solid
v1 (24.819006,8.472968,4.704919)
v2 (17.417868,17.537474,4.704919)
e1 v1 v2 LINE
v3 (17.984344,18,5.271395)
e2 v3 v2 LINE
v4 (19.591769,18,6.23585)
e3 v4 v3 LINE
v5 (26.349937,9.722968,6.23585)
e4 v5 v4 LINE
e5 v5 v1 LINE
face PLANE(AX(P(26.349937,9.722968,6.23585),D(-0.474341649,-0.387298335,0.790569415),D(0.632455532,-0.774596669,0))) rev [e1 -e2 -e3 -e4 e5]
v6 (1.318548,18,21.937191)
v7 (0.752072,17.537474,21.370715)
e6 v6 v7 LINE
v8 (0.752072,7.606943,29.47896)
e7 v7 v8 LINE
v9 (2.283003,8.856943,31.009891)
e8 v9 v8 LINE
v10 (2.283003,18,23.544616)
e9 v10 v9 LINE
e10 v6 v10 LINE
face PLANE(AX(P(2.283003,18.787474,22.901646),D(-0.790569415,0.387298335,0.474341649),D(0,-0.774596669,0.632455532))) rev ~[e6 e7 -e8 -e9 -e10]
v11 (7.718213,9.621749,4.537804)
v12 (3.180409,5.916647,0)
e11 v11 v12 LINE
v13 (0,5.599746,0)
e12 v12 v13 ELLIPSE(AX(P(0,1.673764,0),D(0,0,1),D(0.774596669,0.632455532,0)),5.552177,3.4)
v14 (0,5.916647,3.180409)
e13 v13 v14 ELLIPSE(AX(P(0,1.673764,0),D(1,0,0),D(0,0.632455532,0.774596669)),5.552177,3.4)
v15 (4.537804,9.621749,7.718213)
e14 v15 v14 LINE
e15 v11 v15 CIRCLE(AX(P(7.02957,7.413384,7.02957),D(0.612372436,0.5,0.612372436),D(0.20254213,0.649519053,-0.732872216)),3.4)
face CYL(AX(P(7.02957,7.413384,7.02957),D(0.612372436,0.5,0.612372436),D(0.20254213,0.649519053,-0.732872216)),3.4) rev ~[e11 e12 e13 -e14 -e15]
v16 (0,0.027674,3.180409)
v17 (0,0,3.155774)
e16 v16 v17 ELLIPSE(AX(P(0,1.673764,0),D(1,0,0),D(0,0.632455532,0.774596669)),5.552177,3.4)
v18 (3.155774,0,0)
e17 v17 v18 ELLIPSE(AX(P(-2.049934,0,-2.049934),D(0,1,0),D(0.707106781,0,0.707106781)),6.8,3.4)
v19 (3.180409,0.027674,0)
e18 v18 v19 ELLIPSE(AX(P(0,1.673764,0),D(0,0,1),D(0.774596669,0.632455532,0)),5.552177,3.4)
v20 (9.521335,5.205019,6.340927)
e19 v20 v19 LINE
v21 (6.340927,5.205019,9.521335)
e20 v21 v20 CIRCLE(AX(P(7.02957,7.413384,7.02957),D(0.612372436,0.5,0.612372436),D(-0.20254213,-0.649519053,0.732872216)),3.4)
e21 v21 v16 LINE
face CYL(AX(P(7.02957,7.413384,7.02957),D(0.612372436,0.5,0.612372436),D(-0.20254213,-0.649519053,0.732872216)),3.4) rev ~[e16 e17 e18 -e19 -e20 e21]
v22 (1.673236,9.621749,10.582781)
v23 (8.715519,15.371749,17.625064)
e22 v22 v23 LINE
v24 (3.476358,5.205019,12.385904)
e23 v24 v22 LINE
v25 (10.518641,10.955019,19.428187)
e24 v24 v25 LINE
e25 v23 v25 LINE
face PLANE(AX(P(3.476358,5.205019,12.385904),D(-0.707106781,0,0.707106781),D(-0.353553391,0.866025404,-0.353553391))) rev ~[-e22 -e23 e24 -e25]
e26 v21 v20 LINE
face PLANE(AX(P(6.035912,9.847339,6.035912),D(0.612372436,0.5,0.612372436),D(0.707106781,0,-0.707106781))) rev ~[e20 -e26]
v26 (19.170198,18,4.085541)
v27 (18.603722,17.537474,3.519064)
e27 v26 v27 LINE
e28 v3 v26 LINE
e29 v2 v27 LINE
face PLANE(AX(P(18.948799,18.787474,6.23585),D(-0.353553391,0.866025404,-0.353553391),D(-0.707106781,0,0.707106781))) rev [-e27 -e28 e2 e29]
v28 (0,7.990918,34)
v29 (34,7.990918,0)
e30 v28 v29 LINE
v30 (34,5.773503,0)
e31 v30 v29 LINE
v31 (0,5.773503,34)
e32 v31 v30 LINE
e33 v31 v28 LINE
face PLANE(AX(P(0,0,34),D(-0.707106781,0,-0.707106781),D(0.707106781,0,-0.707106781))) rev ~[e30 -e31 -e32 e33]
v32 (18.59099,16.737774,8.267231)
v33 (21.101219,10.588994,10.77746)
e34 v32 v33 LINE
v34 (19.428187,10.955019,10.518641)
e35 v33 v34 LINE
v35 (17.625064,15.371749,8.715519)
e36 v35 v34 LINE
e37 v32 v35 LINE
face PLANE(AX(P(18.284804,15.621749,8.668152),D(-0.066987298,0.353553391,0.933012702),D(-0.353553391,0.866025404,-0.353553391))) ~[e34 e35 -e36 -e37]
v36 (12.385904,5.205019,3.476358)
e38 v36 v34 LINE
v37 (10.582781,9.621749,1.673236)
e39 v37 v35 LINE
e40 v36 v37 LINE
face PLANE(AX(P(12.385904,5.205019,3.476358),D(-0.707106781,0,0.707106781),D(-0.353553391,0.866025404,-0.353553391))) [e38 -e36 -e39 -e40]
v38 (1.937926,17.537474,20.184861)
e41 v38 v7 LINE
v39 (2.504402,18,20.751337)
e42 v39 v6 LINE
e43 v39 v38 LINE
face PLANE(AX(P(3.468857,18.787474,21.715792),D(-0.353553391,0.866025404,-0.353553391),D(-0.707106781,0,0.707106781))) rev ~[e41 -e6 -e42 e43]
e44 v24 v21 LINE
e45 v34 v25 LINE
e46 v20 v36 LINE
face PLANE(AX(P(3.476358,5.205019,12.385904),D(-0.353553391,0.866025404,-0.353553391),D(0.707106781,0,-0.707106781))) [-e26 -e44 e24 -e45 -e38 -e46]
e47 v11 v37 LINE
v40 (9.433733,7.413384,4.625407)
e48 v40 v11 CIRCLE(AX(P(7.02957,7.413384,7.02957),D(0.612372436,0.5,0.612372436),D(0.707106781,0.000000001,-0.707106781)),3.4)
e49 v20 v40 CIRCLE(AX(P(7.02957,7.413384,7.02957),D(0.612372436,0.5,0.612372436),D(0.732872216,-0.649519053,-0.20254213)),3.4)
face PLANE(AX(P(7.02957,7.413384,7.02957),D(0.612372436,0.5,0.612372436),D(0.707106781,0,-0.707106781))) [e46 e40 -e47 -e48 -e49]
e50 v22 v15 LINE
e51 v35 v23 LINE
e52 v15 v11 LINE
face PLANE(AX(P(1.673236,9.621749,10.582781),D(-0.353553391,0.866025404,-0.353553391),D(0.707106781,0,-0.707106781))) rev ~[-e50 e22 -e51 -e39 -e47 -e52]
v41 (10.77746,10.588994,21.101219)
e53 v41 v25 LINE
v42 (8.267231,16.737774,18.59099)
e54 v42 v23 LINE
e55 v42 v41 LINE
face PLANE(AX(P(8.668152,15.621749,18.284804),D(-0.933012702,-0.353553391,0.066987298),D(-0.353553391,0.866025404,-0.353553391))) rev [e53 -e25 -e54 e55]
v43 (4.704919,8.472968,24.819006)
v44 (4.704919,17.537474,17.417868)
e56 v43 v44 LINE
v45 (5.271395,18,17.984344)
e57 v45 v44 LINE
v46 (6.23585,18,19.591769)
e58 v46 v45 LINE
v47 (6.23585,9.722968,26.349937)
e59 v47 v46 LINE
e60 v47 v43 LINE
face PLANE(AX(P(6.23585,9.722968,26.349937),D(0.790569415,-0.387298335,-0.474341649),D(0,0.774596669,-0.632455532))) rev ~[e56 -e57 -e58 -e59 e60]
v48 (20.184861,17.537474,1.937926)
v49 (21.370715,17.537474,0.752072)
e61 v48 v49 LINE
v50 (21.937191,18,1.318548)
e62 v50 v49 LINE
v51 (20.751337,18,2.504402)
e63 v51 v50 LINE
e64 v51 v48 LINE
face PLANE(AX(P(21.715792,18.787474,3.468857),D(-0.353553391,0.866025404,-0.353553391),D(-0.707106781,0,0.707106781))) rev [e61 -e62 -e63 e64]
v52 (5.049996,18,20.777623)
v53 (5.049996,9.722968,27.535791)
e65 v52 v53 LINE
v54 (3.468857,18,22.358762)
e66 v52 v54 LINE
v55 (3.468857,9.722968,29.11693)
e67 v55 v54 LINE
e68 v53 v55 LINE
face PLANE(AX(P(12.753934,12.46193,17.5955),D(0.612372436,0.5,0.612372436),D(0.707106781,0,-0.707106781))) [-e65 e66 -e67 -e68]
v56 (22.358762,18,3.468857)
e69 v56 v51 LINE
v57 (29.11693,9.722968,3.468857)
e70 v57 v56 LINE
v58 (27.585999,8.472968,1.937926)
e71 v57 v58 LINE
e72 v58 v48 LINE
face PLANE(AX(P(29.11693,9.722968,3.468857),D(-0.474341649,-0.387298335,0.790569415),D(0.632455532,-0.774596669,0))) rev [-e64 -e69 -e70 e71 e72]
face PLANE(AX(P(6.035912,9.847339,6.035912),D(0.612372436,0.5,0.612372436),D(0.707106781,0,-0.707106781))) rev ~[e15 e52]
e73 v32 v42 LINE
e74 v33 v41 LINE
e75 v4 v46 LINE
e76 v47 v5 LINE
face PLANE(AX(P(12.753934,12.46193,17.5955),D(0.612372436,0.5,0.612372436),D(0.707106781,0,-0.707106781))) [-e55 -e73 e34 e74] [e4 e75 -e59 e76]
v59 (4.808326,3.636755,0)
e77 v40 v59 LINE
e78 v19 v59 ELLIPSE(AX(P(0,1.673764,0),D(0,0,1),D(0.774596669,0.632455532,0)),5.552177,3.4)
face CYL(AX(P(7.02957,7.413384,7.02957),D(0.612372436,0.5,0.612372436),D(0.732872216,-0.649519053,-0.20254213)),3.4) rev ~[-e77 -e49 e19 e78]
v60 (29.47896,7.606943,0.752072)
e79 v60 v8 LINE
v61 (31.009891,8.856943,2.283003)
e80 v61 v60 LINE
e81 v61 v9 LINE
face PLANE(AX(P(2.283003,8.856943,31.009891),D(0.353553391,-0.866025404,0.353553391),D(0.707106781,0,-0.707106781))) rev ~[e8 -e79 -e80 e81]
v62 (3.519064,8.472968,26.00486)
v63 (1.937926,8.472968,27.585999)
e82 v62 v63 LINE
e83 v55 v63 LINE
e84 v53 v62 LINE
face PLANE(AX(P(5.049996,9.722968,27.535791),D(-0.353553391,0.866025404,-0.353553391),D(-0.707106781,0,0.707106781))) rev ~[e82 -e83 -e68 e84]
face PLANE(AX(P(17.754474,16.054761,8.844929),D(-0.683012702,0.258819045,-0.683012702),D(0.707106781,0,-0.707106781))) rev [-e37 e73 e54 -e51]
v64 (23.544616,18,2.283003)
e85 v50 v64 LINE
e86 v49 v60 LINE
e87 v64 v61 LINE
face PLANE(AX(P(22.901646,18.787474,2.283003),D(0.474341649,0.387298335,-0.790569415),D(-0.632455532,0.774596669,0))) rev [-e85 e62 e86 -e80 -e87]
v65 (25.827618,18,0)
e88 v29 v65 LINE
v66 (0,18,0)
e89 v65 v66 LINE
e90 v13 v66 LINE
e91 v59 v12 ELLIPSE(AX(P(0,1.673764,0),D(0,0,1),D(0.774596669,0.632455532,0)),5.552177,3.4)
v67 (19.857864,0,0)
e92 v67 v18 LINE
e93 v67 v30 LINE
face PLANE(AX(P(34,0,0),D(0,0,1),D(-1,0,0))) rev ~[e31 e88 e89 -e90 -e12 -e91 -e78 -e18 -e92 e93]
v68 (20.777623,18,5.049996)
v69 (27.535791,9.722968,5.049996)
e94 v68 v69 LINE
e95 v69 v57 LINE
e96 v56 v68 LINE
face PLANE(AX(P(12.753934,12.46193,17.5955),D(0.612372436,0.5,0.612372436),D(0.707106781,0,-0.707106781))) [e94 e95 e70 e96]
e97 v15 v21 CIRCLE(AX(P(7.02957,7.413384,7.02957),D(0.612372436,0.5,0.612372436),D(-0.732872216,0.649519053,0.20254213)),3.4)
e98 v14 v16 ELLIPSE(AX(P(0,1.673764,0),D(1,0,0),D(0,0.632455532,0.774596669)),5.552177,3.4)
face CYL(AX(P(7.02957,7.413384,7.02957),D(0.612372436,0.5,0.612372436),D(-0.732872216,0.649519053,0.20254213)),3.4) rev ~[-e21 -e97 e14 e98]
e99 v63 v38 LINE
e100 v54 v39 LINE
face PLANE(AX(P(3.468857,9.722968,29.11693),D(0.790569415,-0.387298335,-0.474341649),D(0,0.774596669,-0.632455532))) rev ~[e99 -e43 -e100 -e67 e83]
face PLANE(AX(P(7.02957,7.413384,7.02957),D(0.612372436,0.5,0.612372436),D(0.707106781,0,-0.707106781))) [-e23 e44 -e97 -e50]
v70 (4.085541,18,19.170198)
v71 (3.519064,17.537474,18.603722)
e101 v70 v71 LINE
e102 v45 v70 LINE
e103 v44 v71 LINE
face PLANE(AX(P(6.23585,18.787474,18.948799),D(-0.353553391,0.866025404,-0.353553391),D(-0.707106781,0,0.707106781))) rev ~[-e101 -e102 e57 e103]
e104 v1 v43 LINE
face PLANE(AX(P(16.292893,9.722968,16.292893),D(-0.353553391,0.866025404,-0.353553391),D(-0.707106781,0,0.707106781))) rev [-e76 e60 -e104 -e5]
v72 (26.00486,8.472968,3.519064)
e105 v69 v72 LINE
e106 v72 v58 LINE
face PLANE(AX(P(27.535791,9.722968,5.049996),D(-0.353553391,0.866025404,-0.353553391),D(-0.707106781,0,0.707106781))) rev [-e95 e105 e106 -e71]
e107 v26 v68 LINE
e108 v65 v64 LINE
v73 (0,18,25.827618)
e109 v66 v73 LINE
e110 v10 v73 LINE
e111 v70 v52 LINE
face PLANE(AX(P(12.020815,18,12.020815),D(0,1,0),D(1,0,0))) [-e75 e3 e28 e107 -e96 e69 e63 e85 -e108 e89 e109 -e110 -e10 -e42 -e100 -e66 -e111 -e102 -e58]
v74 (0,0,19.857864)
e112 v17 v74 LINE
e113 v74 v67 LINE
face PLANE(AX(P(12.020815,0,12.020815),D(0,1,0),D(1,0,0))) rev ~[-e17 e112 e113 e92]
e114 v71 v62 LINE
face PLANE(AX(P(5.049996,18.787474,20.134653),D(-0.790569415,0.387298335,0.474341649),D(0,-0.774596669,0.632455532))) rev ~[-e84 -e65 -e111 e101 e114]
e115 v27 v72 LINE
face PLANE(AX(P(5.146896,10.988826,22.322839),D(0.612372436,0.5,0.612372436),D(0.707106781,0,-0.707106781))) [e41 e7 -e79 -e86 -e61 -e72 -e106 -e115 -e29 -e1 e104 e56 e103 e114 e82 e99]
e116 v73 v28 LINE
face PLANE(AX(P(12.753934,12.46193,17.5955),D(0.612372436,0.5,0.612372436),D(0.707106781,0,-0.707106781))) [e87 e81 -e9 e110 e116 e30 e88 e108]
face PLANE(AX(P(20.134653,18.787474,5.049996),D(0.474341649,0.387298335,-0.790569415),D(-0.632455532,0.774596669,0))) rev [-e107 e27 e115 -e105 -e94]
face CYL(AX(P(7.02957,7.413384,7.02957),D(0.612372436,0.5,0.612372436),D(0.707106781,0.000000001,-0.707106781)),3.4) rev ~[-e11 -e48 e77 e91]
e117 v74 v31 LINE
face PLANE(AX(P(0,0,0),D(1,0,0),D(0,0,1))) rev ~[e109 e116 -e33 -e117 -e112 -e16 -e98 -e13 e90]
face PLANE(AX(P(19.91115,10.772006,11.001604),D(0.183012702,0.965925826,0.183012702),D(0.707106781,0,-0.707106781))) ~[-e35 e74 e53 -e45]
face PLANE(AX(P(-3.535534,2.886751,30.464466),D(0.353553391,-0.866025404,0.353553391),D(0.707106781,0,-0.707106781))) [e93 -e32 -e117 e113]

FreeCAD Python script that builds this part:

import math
import FreeCAD as App
import Part
import Sketcher

V = App.Vector
Q = App.Units.Quantity


def edges_at(feature, points):
    """Names of the edges that pass closest to the given points."""
    edges = feature.Shape.Edges
    near = lambda p: min(range(len(edges)), key=lambda i: edges[i].distToShape(Part.Vertex(*p))[0])
    return sorted({f"Edge{near(p) + 1}" for p in points})


def add_polygon(sketch, points):
    """Adds a closed chain of lines whose ends are joined by coincident constraints."""
    first, n = sketch.GeometryCount, len(points)
    for a, b in zip(points, points[1:] + points[:1]):
        sketch.addGeometry(Part.LineSegment(App.Vector(*a, 0), App.Vector(*b, 0)), False)
    for i in range(n):
        sketch.addConstraint(Sketcher.Constraint("Coincident", first + i, 2, first + (i + 1) % n, 1))

doc = App.newDocument("Part")
body = doc.addObject("PartDesign::Body", "Body")

# Sketch on XZ plane
sketch1 = doc.addObject("Sketcher::SketchObject", "Sketch")
body.addObject(sketch1)
sketch1.AttachmentSupport = (doc.XZ_Plane, [""])
sketch1.MapMode = "FlatFace"
add_polygon(sketch1, [(0, 0), (0, 34), (34, 0)])  # lines 0-2
sketch1.addConstraint([
    Sketcher.Constraint("Vertical", 0),
    Sketcher.Constraint("Horizontal", 2),
    Sketcher.Constraint("Coincident", 2, 2, -1, 1),
    Sketcher.Constraint("Equal", 2, 0),
    Sketcher.Constraint("DistanceX", 2, 2, 2, 1, Q("34 mm")),
])
pad1 = doc.addObject("PartDesign::Pad", "Pad")
body.addObject(pad1)
pad1.Profile = sketch1
pad1.Length = 18
pad1.Reversed = True

# Sketch on an angled plane
sketch2 = doc.addObject("Sketcher::SketchObject", "Sketch001")
body.addObject(sketch2)
sketch2.Placement = App.Placement(V(15.196709, 12.408061, 15.196709), App.Rotation(V(0.707106781, 0, -0.707106781), V(-0.353553391, 0.866025404, -0.353553391), V(0.612372436, 0.5, 0.612372436), "ZXY"))
add_polygon(sketch2, [(-24, 7), (-24, -5), (24, -5), (24, 7)])  # lines 0-3
sketch2.addConstraint([
    Sketcher.Constraint("Vertical", 0),
    Sketcher.Constraint("Horizontal", 1),
    Sketcher.Constraint("Vertical", 2),
    Sketcher.Constraint("Horizontal", 3),
    Sketcher.Constraint("DistanceX", 1, 1, 1, 2, Q("48.083261 mm")),
    Sketcher.Constraint("DistanceY", 0, 2, 0, 1, Q("12.46679 mm")),
    Sketcher.Constraint("DistanceX", 0, 2, -1, 1, Q("24.041631 mm")),
    Sketcher.Constraint("DistanceY", -1, 1, 2, 2, Q("7.366312 mm")),
])
pocket1 = doc.addObject("PartDesign::Pocket", "Pocket")
body.addObject(pocket1)
pocket1.Profile = sketch2
pocket1.Length = 9
pocket1.Reversed = True

# Sketch on an angled plane
sketch3 = doc.addObject("Sketcher::SketchObject", "Sketch002")
body.addObject(sketch3)
sketch3.Placement = App.Placement(V(15.196709, 12.408061, 15.196709), App.Rotation(V(0.707106781, 0, -0.707106781), V(-0.353553391, 0.866025404, -0.353553391), V(0.612372436, 0.5, 0.612372436), "ZXY"))
add_polygon(sketch3, [(-6, 4), (-6, -1), (6, -1), (6, 4)])  # lines 0-3
sketch3.addConstraint([
    Sketcher.Constraint("Vertical", 0),
    Sketcher.Constraint("Horizontal", 1),
    Sketcher.Constraint("Vertical", 2),
    Sketcher.Constraint("Horizontal", 3),
    Sketcher.Constraint("DistanceX", 1, 1, 1, 2, Q("12.6 mm")),
    Sketcher.Constraint("DistanceY", 0, 2, 0, 1, Q("5.1 mm")),
    Sketcher.Constraint("DistanceX", 0, 2, -1, 1, Q("6.3 mm")),
    Sketcher.Constraint("DistanceY", 0, 2, -1, 1, Q("1.100478 mm")),
])
pocket2 = doc.addObject("PartDesign::Pocket", "Pocket001")
body.addObject(pocket2)
pocket2.Profile = sketch3
pocket2.Type = "TwoLengths"
pocket2.Length = 30.344292
pocket2.Length2 = 12.5
pocket2.Reversed = True

# Sketch on an angled plane
sketch4 = doc.addObject("Sketcher::SketchObject", "Sketch003")
body.addObject(sketch4)
sketch4.Placement = App.Placement(V(15.196709, 12.408061, 15.196709), App.Rotation(V(0.707106781, 0, -0.707106781), V(-0.353553391, 0.866025404, -0.353553391), V(0.612372436, 0.5, 0.612372436), "ZXY"))
add_polygon(sketch4, [(-12.9, 7.4), (-14.6, 7.4), (-20.3, -4.1), (0, -4.1), (0, -3.1), (-14.2, -3.1), (-9, 7.4), (-10.7, 7.4), (-15.9, -3.1), (-18.1, -3.1)])  # lines 0-9
sketch4.addConstraint([
    Sketcher.Constraint("Horizontal", 0),
    Sketcher.Constraint("Horizontal", 2),
    Sketcher.Constraint("Vertical", 3),
    Sketcher.Constraint("Horizontal", 4),
    Sketcher.Constraint("Horizontal", 6),
    Sketcher.Constraint("Horizontal", 8),
    Sketcher.Constraint("PointOnObject", 2, 2, -2),
    Sketcher.Constraint("Parallel", 1, 5),
    Sketcher.Constraint("Parallel", 5, 7),
    Sketcher.Constraint("Parallel", 7, 9),
    Sketcher.Constraint("Horizontal", 0, 2, 5, 2),
    Sketcher.Constraint("Horizontal", 4, 2, 7, 2),
    Sketcher.Constraint("Equal", 0, 6),
    Sketcher.Constraint("DistanceY", 3, 1, 3, 2, Q("1 mm")),
    Sketcher.Constraint("DistanceX", 0, 2, 0, 1, Q("1.677051 mm")),
    Sketcher.Constraint("Distance", 1, Q("12.82026 mm")),
    Sketcher.Constraint("DistanceX", 2, 1, 2, 2, Q("20.312977 mm")),
    Sketcher.Constraint("DistanceX", 4, 2, 4, 1, Q("14.222807 mm")),
    Sketcher.Constraint("DistanceX", 8, 2, 8, 1, Q("2.236068 mm")),
    Sketcher.Constraint("DistanceY", -1, 1, 0, 2, Q("7.366312 mm")),
])
pocket3 = doc.addObject("PartDesign::Pocket", "Pocket002")
body.addObject(pocket3)
pocket3.Profile = sketch4
pocket3.Length = 2.5
doc.recompute()

datumplane = doc.addObject("PartDesign::Plane", "DatumPlane")
body.addObject(datumplane)
datumplane.Placement = App.Placement(V(0, 0, 0), App.Rotation(V(-0.707106781, 0, -0.707106781), V(0, -1, 0), V(-0.707106781, 0, 0.707106781), "ZXY"))
mirrored = doc.addObject("PartDesign::Mirrored", "Mirrored")
body.addObject(mirrored)
mirrored.Originals = [pocket3]
mirrored.MirrorPlane = (datumplane, [""])
body.Tip = mirrored
doc.recompute()

chamfer = doc.addObject("PartDesign::Chamfer", "Chamfer")
body.addObject(chamfer)
chamfer.Base = (mirrored, edges_at(mirrored, [(17, 0, 17)]))
chamfer.ChamferType = "Two distances"
chamfer.Size = 10
chamfer.Size2 = 5.773503
doc.recompute()

chamfer2 = doc.addObject("PartDesign::Chamfer", "Chamfer001")
body.addObject(chamfer2)
chamfer2.Base = (chamfer, edges_at(chamfer, [
    (19.139, 13.663, 10.229),
    (15.586, 11.455, 15.586),
    (10.229, 13.663, 19.139),
    (13.783, 15.872, 13.783),
]))
chamfer2.Size = 1

# Sketch on an angled plane
sketch5 = doc.addObject("Sketcher::SketchObject", "Sketch004")
body.addObject(sketch5)
sketch5.Placement = App.Placement(V(7.542053, 6.158061, 7.542053), App.Rotation(V(0.707106781, 0, -0.707106781), V(-0.353553391, 0.866025404, -0.353553391), V(0.612372436, 0.5, 0.612372436), "ZXY"))
sketch5.addGeometry([
    Part.ArcOfCircle(Part.Circle(V(0, 1.4, 0), V(0, 0, 1), 3.4), math.radians(49), math.radians(131)),  # 0
    Part.ArcOfCircle(Part.Circle(V(0, 1.4, 0), V(0, 0, 1), 3.4), math.radians(131), math.radians(229)),  # 1
    Part.ArcOfCircle(Part.Circle(V(0, 1.4, 0), V(0, 0, 1), 3.4), math.radians(-131), math.radians(-49)),  # 2
    Part.ArcOfCircle(Part.Circle(V(0, 1.4, 0), V(0, 0, 1), 3.4), math.radians(-49), math.radians(0)),  # 3
    Part.ArcOfCircle(Part.Circle(V(0, 1.4, 0), V(0, 0, 1), 3.4), math.radians(0), math.radians(49)),  # 4
], False)
sketch5.addConstraint([
    Sketcher.Constraint("Tangent", 0, 2, 1, 1),
    Sketcher.Constraint("Tangent", 1, 2, 2, 1),
    Sketcher.Constraint("Tangent", 2, 2, 3, 1),
    Sketcher.Constraint("Tangent", 3, 2, 4, 1),
    Sketcher.Constraint("Tangent", 4, 2, 0, 1),
    Sketcher.Constraint("Coincident", 2, 3, 0, 3),
    Sketcher.Constraint("Symmetric", 1, 2, 2, 2, -2),
    Sketcher.Constraint("Horizontal", 4, 3, 3, 2),
    Sketcher.Constraint("Horizontal", 0, 2, 4, 2),
    Sketcher.Constraint("Vertical", 0, 2, 1, 2),
    Sketcher.Constraint("Radius", 0, Q("3.4 mm")),
    Sketcher.Constraint("DistanceY", 4, 3, 0, 2, Q("2.55 mm")),
    Sketcher.Constraint("DistanceY", -1, 1, 0, 3, Q("1.449522 mm")),
])
pocket4 = doc.addObject("PartDesign::Pocket", "Pocket003")
body.addObject(pocket4)
pocket4.Profile = sketch5
pocket4.Type = "ThroughAll"

doc.recompute()
